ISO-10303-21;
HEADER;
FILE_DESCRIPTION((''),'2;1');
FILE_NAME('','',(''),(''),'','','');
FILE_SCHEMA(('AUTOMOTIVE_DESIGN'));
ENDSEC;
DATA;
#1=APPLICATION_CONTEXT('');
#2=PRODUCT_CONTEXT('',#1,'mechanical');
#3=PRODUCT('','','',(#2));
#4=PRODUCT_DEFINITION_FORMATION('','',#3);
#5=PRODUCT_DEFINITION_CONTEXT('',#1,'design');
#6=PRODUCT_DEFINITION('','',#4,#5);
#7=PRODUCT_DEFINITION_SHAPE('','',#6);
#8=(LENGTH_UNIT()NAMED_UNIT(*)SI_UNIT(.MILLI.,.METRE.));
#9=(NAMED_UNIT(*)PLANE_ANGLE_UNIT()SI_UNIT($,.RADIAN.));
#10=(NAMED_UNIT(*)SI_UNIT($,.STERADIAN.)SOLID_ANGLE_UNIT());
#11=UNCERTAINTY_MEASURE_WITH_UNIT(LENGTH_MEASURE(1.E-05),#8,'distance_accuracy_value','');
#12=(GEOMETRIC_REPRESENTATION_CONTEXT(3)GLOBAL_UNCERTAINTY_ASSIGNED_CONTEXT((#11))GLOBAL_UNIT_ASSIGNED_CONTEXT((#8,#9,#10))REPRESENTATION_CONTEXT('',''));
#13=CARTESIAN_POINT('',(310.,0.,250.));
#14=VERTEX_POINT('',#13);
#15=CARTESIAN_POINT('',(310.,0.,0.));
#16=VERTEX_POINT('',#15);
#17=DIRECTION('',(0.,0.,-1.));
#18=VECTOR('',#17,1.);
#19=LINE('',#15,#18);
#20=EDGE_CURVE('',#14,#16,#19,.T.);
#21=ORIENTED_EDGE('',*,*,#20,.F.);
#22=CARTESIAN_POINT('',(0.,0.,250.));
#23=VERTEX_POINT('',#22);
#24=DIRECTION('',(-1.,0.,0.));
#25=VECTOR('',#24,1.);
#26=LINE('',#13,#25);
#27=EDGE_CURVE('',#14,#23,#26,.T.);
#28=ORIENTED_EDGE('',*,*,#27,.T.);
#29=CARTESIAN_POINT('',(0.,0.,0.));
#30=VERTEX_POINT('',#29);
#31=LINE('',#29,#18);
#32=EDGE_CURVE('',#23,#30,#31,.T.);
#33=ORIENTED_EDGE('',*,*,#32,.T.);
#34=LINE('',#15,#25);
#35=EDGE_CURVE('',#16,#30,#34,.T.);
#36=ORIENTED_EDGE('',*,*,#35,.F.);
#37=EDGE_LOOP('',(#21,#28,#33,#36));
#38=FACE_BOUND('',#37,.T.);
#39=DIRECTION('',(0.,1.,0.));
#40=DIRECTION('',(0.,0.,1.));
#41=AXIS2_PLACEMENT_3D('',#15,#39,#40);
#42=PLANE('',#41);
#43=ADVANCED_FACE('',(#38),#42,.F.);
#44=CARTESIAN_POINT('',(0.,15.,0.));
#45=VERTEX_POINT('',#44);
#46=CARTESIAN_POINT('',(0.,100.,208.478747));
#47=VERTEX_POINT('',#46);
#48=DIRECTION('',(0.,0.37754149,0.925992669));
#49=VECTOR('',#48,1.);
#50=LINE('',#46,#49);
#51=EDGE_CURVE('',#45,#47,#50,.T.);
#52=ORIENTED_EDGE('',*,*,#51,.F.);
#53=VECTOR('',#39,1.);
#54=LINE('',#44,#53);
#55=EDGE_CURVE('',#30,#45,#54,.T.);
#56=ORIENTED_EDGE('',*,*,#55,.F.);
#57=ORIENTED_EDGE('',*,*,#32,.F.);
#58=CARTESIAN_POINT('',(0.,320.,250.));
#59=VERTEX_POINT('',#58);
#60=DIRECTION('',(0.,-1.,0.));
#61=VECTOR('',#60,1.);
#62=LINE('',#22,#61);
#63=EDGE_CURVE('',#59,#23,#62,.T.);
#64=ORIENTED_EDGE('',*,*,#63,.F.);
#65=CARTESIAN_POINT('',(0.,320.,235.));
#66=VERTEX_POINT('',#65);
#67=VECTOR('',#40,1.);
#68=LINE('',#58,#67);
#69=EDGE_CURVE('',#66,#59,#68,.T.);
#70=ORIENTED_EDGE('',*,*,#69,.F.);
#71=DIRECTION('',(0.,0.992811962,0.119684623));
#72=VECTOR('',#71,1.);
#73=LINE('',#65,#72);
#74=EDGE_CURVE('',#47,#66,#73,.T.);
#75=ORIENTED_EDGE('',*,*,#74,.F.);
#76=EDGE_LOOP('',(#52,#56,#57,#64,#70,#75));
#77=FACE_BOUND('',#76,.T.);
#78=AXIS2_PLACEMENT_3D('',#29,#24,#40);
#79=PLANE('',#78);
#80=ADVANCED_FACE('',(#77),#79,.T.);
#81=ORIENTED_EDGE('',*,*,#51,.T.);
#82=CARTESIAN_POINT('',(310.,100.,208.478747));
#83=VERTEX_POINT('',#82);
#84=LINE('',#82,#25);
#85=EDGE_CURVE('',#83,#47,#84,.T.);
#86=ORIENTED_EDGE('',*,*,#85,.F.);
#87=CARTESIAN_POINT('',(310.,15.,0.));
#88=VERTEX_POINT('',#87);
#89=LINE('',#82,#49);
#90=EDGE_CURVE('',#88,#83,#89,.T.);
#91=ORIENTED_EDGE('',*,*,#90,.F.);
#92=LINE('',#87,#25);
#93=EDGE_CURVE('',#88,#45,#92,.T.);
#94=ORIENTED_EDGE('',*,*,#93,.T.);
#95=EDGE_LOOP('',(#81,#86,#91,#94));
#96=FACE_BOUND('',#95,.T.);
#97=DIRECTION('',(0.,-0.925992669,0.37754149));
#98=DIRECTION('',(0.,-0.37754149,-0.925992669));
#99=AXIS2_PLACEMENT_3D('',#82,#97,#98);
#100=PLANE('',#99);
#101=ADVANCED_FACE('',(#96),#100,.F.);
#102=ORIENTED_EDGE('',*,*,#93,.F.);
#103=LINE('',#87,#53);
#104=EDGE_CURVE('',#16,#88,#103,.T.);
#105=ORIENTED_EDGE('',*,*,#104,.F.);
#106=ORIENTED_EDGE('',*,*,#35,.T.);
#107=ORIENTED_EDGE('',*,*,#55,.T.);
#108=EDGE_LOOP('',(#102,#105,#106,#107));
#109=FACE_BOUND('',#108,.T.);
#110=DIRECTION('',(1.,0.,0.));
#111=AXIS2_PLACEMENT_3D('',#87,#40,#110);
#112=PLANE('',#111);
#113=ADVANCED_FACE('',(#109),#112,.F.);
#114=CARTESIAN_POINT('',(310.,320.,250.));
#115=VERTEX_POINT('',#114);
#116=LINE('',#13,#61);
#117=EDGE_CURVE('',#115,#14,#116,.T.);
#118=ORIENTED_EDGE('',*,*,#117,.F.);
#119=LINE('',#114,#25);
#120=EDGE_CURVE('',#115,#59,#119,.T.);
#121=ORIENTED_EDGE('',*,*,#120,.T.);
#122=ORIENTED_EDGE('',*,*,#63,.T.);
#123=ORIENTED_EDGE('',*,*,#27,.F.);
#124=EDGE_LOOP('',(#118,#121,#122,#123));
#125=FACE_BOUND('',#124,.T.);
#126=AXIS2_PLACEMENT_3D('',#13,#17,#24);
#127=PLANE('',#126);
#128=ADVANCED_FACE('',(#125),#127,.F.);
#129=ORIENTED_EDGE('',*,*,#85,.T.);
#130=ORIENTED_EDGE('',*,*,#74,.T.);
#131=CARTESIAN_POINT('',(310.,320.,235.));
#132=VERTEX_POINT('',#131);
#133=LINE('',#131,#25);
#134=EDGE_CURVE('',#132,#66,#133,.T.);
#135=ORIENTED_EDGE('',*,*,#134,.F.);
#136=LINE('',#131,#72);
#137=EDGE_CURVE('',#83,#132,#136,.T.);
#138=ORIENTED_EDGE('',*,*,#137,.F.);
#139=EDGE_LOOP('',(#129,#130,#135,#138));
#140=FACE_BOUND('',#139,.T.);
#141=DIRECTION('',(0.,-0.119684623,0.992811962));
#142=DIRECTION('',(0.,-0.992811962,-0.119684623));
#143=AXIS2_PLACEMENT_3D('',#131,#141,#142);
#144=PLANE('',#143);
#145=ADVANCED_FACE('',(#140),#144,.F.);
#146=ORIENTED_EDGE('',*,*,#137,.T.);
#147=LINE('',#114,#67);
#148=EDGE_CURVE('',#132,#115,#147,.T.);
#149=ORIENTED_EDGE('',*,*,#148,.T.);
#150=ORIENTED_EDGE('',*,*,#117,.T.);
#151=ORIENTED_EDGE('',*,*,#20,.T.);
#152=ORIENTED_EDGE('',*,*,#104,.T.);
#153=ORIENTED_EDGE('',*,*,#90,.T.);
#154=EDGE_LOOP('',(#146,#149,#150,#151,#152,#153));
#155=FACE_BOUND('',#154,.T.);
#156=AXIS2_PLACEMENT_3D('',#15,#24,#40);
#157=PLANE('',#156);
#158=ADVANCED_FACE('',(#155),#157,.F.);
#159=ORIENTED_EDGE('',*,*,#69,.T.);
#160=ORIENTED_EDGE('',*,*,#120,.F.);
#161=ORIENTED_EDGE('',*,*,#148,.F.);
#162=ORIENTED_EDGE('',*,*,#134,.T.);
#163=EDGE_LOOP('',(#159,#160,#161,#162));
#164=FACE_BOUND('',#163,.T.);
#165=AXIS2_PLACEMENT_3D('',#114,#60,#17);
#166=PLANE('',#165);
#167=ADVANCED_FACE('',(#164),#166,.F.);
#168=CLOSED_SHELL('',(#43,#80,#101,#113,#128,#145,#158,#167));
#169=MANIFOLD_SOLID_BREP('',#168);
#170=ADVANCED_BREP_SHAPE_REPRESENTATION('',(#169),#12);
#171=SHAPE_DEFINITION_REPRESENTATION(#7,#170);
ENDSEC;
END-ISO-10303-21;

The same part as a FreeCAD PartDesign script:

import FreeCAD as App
import Part
import Sketcher
from FreeCAD import Vector

doc = App.newDocument("Part")
params = doc.addObject("Spreadsheet::Sheet", "Params")
for row, (alias, value) in enumerate([
    ("sketch1_width", "15 mm"),
    ("sketch1_width2", "320 mm"),
    ("sketch1_height", "250 mm"),
    ("pad1_length", "310 mm"),
], start=1):
    params.set(f"A{row}", alias)
    params.set(f"B{row}", "=" + value)
    params.setAlias(f"B{row}", alias)

body = doc.addObject("PartDesign::Body", "Body")

sketch1 = body.newObject("Sketcher::SketchObject", "Sketch")
sketch1.AttachmentSupport = (doc.getObject("YZ_Plane"), [""])
sketch1.MapMode = "FlatFace"
sketch1.addGeometry([
    Part.LineSegment(Vector(0, 250, 0), Vector(0, 0, 0)),
    Part.LineSegment(Vector(0, 0, 0), Vector(15, 0, 0)),
    Part.LineSegment(Vector(15, 0, 0), Vector(100, 208, 0)),
    Part.LineSegment(Vector(100, 208, 0), Vector(320, 235, 0)),
    Part.LineSegment(Vector(320, 235, 0), Vector(320, 250, 0)),
    Part.LineSegment(Vector(320, 250, 0), Vector(0, 250, 0)),
], False)
sketch1.addConstraint([
    Sketcher.Constraint("Coincident", 0, 2, 1, 1),
    Sketcher.Constraint("Coincident", 1, 2, 2, 1),
    Sketcher.Constraint("Coincident", 2, 2, 3, 1),
    Sketcher.Constraint("Coincident", 3, 2, 4, 1),
    Sketcher.Constraint("Coincident", 4, 2, 5, 1),
    Sketcher.Constraint("Coincident", 5, 2, 0, 1),
    Sketcher.Constraint("Vertical", 0),
    Sketcher.Constraint("Horizontal", 1),
    Sketcher.Constraint("Vertical", 4),
    Sketcher.Constraint("Horizontal", 5),
    Sketcher.Constraint("Coincident", 0, 2, -1, 1),
    Sketcher.Constraint("Equal", 1, 4),
    Sketcher.Constraint("DistanceX", 1, 1, 1, 2, 15.0),
    Sketcher.Constraint("DistanceX", 5, 2, 5, 1, 320.0),
    Sketcher.Constraint("DistanceY", 0, 2, 0, 1, 250.0),
    Sketcher.Constraint("DistanceX", -1, 1, 2, 2, 100.0),
    Sketcher.Constraint("Distance", 2, 225.140818),
])
sketch1.setExpression("Constraints[12]", "Params.sketch1_width")
sketch1.setExpression("Constraints[13]", "Params.sketch1_width2")
sketch1.setExpression("Constraints[14]", "Params.sketch1_height")
pad1 = body.newObject("PartDesign::Pad", "Pad")
pad1.Profile = sketch1
pad1.setExpression("Length", "Params.pad1_length")

doc.recompute()
